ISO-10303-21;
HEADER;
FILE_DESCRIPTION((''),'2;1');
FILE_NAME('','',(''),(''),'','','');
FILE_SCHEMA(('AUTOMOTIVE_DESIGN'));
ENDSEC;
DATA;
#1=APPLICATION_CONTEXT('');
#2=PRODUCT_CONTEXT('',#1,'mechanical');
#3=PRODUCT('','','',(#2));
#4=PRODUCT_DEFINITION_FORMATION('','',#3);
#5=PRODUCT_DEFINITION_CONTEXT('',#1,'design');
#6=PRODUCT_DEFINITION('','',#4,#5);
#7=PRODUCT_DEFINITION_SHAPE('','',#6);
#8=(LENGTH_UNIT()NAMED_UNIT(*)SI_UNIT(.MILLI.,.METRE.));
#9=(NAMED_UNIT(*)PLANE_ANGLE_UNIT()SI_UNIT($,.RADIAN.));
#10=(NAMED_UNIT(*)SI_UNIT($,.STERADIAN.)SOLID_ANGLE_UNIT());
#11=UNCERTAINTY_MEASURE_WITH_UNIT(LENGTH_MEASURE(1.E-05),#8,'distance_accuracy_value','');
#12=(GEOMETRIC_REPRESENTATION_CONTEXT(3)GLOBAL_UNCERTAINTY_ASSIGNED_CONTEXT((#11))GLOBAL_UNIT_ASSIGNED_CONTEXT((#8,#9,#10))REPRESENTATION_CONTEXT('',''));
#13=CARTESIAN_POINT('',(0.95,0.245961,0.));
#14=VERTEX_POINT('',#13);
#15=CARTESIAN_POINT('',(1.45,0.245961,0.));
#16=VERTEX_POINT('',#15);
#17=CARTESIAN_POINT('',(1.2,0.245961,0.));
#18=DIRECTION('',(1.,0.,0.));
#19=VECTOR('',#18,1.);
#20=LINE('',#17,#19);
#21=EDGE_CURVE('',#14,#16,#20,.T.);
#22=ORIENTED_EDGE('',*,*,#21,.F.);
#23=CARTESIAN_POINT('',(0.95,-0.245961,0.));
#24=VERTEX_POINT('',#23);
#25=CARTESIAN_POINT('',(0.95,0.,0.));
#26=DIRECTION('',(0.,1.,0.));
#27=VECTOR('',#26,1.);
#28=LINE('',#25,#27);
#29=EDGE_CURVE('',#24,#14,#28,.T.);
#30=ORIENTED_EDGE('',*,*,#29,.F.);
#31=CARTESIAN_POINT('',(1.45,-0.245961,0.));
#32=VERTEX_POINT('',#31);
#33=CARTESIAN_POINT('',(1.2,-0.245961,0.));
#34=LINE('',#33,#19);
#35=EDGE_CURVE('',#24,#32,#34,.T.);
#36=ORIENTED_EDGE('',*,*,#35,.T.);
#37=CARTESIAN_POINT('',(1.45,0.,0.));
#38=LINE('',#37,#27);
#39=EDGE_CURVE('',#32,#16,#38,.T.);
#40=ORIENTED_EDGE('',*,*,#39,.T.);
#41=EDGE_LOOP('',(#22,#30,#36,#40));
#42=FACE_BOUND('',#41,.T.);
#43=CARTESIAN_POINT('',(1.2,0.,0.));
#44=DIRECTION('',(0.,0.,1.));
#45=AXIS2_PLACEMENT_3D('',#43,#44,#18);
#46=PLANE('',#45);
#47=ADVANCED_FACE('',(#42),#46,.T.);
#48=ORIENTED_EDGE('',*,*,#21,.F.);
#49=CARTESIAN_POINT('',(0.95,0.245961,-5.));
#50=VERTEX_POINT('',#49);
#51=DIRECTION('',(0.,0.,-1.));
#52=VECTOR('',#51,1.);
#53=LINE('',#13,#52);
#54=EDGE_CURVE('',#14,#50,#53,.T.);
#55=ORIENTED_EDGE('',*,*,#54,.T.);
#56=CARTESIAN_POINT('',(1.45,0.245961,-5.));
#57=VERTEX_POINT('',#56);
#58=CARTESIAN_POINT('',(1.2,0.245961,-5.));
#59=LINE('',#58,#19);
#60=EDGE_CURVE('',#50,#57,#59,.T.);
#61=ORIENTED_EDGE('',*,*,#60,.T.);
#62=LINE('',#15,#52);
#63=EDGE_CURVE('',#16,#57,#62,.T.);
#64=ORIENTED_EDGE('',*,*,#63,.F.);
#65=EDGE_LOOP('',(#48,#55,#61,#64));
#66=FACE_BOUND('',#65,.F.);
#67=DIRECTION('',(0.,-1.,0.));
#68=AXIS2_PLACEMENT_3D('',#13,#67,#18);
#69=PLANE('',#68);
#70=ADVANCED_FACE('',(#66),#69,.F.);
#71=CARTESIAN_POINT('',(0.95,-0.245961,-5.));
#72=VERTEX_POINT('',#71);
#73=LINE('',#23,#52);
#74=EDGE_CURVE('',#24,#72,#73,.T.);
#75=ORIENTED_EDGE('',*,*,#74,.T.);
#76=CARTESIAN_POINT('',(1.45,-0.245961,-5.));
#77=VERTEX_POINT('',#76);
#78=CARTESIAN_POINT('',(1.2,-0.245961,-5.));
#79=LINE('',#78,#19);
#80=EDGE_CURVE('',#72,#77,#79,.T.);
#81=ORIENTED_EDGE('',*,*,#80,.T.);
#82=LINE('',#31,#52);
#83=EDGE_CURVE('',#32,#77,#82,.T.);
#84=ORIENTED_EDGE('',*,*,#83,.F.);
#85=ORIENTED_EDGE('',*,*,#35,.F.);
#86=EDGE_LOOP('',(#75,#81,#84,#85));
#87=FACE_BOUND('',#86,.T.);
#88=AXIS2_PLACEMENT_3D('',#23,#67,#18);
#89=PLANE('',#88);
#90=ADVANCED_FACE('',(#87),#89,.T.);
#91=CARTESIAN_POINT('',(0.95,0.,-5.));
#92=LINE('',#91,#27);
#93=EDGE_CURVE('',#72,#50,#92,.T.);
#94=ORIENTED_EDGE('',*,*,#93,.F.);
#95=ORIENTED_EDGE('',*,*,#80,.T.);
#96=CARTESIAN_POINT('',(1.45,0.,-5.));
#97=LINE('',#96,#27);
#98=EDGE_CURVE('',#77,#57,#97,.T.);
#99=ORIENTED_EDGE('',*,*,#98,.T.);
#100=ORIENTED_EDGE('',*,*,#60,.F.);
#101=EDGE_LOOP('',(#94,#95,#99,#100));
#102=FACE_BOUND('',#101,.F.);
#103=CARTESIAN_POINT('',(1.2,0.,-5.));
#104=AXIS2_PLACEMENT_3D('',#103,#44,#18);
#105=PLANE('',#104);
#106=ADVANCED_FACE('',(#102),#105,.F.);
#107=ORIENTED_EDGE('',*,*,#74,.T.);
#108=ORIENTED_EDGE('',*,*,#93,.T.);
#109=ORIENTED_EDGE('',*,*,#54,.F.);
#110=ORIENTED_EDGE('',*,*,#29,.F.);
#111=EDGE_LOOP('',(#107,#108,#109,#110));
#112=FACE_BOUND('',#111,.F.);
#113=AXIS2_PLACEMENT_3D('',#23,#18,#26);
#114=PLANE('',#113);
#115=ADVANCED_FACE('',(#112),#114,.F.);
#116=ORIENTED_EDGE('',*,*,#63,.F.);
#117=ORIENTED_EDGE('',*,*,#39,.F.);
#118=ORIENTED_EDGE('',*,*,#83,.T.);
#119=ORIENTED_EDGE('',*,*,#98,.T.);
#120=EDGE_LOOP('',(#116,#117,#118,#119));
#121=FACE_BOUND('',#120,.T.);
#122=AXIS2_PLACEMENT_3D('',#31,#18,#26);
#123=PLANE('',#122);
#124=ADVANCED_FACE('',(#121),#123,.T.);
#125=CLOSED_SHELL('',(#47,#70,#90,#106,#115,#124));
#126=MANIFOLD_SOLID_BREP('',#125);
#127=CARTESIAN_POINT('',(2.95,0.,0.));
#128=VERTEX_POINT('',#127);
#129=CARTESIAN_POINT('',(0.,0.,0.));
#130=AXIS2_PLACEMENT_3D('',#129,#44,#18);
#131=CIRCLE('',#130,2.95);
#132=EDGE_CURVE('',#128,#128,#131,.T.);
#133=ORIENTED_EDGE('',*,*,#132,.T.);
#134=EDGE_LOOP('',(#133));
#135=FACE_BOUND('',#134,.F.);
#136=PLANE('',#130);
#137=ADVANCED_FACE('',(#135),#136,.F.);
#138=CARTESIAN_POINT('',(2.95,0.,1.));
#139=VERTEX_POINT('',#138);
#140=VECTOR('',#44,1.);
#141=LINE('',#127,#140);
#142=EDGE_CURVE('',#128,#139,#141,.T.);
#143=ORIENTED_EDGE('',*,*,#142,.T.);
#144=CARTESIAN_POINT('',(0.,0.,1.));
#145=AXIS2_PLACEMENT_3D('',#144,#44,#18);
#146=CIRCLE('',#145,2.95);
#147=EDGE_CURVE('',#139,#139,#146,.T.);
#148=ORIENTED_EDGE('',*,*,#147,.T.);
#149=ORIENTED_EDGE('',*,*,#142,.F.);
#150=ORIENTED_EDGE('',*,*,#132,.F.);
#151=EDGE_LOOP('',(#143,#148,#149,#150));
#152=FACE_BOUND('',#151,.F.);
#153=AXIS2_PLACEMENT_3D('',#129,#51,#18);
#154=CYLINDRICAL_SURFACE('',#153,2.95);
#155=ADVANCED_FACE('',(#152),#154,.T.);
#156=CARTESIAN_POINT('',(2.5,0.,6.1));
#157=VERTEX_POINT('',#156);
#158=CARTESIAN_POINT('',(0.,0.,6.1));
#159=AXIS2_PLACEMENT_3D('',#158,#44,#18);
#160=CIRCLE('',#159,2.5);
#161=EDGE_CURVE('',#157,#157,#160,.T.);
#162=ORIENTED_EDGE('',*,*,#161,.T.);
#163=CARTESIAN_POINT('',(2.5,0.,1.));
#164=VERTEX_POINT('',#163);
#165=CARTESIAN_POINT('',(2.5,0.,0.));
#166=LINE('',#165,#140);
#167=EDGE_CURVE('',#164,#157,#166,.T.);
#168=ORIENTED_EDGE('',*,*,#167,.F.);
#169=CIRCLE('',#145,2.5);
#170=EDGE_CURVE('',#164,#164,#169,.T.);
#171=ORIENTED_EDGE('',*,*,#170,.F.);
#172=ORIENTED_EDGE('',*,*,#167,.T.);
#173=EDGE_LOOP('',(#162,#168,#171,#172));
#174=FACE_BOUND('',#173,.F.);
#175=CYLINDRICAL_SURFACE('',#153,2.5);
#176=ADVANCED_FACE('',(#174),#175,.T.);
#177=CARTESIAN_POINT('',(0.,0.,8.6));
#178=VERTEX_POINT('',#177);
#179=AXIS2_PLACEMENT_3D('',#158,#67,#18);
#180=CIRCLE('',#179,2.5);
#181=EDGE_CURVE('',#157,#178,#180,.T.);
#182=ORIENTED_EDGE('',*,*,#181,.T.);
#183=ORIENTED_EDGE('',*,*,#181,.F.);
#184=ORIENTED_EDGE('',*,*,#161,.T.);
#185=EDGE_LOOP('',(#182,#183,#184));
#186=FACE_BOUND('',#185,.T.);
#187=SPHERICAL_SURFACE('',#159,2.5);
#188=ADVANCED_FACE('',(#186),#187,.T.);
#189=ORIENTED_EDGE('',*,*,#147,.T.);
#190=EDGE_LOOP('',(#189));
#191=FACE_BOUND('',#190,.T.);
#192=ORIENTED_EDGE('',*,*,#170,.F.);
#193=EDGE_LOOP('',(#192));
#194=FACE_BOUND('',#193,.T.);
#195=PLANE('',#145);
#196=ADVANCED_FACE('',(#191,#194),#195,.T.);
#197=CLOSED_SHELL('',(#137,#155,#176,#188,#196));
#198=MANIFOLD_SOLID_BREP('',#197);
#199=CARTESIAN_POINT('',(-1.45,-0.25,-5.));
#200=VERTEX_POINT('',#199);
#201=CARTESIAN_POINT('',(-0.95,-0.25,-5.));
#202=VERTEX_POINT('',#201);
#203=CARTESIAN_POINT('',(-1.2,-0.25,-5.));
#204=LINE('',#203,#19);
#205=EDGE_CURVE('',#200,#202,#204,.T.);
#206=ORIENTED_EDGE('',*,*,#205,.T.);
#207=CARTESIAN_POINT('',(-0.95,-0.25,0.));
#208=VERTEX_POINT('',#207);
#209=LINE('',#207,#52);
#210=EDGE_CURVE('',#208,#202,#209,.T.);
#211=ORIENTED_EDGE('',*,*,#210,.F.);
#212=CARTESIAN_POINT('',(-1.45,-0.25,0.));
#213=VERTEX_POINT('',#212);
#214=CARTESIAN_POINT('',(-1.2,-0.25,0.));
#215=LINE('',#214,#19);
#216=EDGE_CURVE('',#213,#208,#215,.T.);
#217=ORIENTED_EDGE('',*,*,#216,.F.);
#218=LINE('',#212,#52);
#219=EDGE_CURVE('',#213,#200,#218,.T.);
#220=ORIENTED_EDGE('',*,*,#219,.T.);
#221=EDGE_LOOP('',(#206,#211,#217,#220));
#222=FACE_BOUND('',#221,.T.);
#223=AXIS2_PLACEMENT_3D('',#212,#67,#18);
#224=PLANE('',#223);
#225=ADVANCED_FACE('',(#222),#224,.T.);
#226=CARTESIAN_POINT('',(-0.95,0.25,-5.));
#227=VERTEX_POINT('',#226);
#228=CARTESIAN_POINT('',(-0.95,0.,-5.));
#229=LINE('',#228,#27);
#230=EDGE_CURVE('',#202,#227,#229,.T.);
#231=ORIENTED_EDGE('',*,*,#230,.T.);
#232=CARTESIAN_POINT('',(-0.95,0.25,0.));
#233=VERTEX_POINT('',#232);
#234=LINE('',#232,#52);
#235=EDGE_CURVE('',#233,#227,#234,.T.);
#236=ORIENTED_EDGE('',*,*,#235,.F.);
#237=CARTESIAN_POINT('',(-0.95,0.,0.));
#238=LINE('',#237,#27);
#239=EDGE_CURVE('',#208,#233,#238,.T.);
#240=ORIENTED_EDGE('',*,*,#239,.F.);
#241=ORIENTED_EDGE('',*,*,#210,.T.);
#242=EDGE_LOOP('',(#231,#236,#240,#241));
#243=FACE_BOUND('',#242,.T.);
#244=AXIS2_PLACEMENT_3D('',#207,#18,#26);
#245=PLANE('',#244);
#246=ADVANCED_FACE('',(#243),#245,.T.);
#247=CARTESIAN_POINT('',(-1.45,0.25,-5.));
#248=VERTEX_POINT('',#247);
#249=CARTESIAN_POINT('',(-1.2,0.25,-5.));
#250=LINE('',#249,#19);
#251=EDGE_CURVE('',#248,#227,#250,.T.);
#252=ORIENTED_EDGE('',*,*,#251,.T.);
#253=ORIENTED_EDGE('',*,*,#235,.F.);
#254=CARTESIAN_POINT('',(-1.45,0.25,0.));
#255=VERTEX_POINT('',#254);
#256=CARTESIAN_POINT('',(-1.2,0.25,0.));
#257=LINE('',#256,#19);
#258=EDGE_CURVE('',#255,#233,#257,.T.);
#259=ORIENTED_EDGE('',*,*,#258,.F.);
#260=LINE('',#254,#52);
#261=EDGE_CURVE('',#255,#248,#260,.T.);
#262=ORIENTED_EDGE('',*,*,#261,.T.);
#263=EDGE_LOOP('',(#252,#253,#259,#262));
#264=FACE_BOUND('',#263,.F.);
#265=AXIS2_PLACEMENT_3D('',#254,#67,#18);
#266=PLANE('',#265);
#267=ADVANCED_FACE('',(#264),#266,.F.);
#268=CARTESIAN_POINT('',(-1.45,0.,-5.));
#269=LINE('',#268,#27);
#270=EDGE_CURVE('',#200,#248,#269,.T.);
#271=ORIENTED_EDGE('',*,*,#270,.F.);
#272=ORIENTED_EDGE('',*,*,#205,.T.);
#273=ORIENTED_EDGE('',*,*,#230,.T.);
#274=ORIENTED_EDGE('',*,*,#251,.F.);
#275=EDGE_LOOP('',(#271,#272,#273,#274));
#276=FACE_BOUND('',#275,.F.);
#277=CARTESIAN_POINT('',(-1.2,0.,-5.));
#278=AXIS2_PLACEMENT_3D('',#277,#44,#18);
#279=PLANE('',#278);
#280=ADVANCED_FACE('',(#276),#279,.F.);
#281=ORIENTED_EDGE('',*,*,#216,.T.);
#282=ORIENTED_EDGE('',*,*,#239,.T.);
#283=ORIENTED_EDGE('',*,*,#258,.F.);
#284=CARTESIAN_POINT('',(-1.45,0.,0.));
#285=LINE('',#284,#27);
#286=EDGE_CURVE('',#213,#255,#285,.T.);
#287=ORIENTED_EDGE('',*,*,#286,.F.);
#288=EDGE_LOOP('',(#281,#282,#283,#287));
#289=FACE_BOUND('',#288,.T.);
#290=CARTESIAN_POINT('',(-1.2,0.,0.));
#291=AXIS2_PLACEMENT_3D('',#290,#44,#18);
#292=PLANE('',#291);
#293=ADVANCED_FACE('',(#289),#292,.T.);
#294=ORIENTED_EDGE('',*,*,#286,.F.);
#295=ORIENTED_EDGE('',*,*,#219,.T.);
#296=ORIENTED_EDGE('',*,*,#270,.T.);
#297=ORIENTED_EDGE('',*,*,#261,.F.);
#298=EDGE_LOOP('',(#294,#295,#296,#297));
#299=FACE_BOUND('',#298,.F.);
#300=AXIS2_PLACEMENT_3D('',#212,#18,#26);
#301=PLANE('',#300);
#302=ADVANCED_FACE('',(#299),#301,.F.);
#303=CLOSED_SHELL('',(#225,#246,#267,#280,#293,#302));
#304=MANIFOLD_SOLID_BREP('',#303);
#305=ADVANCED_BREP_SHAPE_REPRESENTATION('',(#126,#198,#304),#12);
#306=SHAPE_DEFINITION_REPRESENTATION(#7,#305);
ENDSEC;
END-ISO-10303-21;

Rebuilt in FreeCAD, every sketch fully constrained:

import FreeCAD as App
import Part
import Sketcher
Q = App.Units.Quantity


def edges_at(feature, points):
    """Names of the edges that pass closest to the given points."""
    edges = feature.Shape.Edges
    near = lambda p: min(range(len(edges)), key=lambda i: edges[i].distToShape(Part.Vertex(*p))[0])
    return sorted({f"Edge{near(p) + 1}" for p in points})


def add_polygon(sketch, points):
    """Adds a closed chain of lines whose ends are joined by coincident constraints."""
    first, n = sketch.GeometryCount, len(points)
    for a, b in zip(points, points[1:] + points[:1]):
        sketch.addGeometry(Part.LineSegment(App.Vector(*a, 0), App.Vector(*b, 0)), False)
    for i in range(n):
        sketch.addConstraint(Sketcher.Constraint("Coincident", first + i, 2, first + (i + 1) % n, 1))

doc = App.newDocument("Part")
body = doc.addObject("PartDesign::Body", "Body")

# Sketch on XY plane
sketch1 = body.newObject("Sketcher::SketchObject", "Sketch")
sketch1.AttachmentSupport = (doc.getObject("XY_Plane"), [""])
sketch1.MapMode = "FlatFace"
sketch1.addGeometry(Part.Circle(App.Vector(0, 0, 0), App.Vector(0, 0, 1), 2.5), False)
sketch1.addConstraint(Sketcher.Constraint("Coincident", 0, 3, -1, 1))
sketch1.addConstraint(Sketcher.Constraint("Diameter", 0, Q("5 mm")))
pad1 = body.newObject("PartDesign::Pad", "Pad")
pad1.Profile = sketch1
pad1.Length = 8.6

# Sketch on XY plane
sketch2 = body.newObject("Sketcher::SketchObject", "Sketch001")
sketch2.AttachmentSupport = (doc.getObject("XY_Plane"), [""])
sketch2.MapMode = "FlatFace"
sketch2.addGeometry(Part.Circle(App.Vector(0, 0, 0), App.Vector(0, 0, 1), 2.95), False)
sketch2.addGeometry(Part.Circle(App.Vector(0, 0, 0), App.Vector(0, 0, 1), 2.5), False)
sketch2.addConstraint(Sketcher.Constraint("Coincident", 0, 3, -1, 1))
sketch2.addConstraint(Sketcher.Constraint("Coincident", 1, 3, -1, 1))
sketch2.addConstraint(Sketcher.Constraint("Diameter", 1, Q("5 mm")))
sketch2.addConstraint(Sketcher.Constraint("Diameter", 0, Q("5.9 mm")))
pad2 = body.newObject("PartDesign::Pad", "Pad001")
pad2.Profile = sketch2
pad2.Length = 1
doc.recompute()

fillet = body.newObject("PartDesign::Fillet", "Fillet")
fillet.Base = (pad2, edges_at(pad2, [(-2.5, 0, 8.6)]))
fillet.Radius = 2.5
body2 = doc.addObject("PartDesign::Body", "Body001")
body2.AllowCompound = True

# Sketch on XY plane
sketch3 = body2.newObject("Sketcher::SketchObject", "Sketch002")
sketch3.AttachmentSupport = (doc.getObject("XY_Plane001"), [""])
sketch3.MapMode = "FlatFace"
add_polygon(sketch3, [(0.95, 0.245961), (0.95, -0.245961), (1.45, -0.245961), (1.45, 0.245961)])  # lines 0-3
add_polygon(sketch3, [(-1.45, 0.25), (-1.45, -0.25), (-0.95, -0.25), (-0.95, 0.25)])  # lines 4-7
sketch3.addConstraint(Sketcher.Constraint("Vertical", 0))
sketch3.addConstraint(Sketcher.Constraint("Horizontal", 1))
sketch3.addConstraint(Sketcher.Constraint("Vertical", 2))
sketch3.addConstraint(Sketcher.Constraint("Horizontal", 3))
sketch3.addConstraint(Sketcher.Constraint("Vertical", 4))
sketch3.addConstraint(Sketcher.Constraint("Horizontal", 5))
sketch3.addConstraint(Sketcher.Constraint("Vertical", 6))
sketch3.addConstraint(Sketcher.Constraint("Horizontal", 7))
sketch3.addConstraint(Sketcher.Constraint("Equal", 3, 5))
sketch3.addConstraint(Sketcher.Constraint("Equal", 7, 4))
sketch3.addConstraint(Sketcher.Constraint("DistanceX", 1, 1, 1, 2, Q("0.5 mm")))
sketch3.addConstraint(Sketcher.Constraint("DistanceX", 4, 2, 0, 2, Q("2.4 mm")))
sketch3.addConstraint(Sketcher.Constraint("DistanceX", -1, 1, 0, 2, Q("0.95 mm")))
sketch3.addConstraint(Sketcher.Constraint("DistanceY", 4, 2, -1, 1, Q("0.25 mm")))
sketch3.addConstraint(Sketcher.Constraint("DistanceY", 0, 2, 0, 1, Q("0.491922 mm")))
sketch3.addConstraint(Sketcher.Constraint("DistanceY", 0, 2, -1, 1, Q("0.245961 mm")))
pad3 = body2.newObject("PartDesign::Pad", "Pad002")
pad3.Profile = sketch3
pad3.Length = 5
pad3.Reversed = True

doc.recompute()
